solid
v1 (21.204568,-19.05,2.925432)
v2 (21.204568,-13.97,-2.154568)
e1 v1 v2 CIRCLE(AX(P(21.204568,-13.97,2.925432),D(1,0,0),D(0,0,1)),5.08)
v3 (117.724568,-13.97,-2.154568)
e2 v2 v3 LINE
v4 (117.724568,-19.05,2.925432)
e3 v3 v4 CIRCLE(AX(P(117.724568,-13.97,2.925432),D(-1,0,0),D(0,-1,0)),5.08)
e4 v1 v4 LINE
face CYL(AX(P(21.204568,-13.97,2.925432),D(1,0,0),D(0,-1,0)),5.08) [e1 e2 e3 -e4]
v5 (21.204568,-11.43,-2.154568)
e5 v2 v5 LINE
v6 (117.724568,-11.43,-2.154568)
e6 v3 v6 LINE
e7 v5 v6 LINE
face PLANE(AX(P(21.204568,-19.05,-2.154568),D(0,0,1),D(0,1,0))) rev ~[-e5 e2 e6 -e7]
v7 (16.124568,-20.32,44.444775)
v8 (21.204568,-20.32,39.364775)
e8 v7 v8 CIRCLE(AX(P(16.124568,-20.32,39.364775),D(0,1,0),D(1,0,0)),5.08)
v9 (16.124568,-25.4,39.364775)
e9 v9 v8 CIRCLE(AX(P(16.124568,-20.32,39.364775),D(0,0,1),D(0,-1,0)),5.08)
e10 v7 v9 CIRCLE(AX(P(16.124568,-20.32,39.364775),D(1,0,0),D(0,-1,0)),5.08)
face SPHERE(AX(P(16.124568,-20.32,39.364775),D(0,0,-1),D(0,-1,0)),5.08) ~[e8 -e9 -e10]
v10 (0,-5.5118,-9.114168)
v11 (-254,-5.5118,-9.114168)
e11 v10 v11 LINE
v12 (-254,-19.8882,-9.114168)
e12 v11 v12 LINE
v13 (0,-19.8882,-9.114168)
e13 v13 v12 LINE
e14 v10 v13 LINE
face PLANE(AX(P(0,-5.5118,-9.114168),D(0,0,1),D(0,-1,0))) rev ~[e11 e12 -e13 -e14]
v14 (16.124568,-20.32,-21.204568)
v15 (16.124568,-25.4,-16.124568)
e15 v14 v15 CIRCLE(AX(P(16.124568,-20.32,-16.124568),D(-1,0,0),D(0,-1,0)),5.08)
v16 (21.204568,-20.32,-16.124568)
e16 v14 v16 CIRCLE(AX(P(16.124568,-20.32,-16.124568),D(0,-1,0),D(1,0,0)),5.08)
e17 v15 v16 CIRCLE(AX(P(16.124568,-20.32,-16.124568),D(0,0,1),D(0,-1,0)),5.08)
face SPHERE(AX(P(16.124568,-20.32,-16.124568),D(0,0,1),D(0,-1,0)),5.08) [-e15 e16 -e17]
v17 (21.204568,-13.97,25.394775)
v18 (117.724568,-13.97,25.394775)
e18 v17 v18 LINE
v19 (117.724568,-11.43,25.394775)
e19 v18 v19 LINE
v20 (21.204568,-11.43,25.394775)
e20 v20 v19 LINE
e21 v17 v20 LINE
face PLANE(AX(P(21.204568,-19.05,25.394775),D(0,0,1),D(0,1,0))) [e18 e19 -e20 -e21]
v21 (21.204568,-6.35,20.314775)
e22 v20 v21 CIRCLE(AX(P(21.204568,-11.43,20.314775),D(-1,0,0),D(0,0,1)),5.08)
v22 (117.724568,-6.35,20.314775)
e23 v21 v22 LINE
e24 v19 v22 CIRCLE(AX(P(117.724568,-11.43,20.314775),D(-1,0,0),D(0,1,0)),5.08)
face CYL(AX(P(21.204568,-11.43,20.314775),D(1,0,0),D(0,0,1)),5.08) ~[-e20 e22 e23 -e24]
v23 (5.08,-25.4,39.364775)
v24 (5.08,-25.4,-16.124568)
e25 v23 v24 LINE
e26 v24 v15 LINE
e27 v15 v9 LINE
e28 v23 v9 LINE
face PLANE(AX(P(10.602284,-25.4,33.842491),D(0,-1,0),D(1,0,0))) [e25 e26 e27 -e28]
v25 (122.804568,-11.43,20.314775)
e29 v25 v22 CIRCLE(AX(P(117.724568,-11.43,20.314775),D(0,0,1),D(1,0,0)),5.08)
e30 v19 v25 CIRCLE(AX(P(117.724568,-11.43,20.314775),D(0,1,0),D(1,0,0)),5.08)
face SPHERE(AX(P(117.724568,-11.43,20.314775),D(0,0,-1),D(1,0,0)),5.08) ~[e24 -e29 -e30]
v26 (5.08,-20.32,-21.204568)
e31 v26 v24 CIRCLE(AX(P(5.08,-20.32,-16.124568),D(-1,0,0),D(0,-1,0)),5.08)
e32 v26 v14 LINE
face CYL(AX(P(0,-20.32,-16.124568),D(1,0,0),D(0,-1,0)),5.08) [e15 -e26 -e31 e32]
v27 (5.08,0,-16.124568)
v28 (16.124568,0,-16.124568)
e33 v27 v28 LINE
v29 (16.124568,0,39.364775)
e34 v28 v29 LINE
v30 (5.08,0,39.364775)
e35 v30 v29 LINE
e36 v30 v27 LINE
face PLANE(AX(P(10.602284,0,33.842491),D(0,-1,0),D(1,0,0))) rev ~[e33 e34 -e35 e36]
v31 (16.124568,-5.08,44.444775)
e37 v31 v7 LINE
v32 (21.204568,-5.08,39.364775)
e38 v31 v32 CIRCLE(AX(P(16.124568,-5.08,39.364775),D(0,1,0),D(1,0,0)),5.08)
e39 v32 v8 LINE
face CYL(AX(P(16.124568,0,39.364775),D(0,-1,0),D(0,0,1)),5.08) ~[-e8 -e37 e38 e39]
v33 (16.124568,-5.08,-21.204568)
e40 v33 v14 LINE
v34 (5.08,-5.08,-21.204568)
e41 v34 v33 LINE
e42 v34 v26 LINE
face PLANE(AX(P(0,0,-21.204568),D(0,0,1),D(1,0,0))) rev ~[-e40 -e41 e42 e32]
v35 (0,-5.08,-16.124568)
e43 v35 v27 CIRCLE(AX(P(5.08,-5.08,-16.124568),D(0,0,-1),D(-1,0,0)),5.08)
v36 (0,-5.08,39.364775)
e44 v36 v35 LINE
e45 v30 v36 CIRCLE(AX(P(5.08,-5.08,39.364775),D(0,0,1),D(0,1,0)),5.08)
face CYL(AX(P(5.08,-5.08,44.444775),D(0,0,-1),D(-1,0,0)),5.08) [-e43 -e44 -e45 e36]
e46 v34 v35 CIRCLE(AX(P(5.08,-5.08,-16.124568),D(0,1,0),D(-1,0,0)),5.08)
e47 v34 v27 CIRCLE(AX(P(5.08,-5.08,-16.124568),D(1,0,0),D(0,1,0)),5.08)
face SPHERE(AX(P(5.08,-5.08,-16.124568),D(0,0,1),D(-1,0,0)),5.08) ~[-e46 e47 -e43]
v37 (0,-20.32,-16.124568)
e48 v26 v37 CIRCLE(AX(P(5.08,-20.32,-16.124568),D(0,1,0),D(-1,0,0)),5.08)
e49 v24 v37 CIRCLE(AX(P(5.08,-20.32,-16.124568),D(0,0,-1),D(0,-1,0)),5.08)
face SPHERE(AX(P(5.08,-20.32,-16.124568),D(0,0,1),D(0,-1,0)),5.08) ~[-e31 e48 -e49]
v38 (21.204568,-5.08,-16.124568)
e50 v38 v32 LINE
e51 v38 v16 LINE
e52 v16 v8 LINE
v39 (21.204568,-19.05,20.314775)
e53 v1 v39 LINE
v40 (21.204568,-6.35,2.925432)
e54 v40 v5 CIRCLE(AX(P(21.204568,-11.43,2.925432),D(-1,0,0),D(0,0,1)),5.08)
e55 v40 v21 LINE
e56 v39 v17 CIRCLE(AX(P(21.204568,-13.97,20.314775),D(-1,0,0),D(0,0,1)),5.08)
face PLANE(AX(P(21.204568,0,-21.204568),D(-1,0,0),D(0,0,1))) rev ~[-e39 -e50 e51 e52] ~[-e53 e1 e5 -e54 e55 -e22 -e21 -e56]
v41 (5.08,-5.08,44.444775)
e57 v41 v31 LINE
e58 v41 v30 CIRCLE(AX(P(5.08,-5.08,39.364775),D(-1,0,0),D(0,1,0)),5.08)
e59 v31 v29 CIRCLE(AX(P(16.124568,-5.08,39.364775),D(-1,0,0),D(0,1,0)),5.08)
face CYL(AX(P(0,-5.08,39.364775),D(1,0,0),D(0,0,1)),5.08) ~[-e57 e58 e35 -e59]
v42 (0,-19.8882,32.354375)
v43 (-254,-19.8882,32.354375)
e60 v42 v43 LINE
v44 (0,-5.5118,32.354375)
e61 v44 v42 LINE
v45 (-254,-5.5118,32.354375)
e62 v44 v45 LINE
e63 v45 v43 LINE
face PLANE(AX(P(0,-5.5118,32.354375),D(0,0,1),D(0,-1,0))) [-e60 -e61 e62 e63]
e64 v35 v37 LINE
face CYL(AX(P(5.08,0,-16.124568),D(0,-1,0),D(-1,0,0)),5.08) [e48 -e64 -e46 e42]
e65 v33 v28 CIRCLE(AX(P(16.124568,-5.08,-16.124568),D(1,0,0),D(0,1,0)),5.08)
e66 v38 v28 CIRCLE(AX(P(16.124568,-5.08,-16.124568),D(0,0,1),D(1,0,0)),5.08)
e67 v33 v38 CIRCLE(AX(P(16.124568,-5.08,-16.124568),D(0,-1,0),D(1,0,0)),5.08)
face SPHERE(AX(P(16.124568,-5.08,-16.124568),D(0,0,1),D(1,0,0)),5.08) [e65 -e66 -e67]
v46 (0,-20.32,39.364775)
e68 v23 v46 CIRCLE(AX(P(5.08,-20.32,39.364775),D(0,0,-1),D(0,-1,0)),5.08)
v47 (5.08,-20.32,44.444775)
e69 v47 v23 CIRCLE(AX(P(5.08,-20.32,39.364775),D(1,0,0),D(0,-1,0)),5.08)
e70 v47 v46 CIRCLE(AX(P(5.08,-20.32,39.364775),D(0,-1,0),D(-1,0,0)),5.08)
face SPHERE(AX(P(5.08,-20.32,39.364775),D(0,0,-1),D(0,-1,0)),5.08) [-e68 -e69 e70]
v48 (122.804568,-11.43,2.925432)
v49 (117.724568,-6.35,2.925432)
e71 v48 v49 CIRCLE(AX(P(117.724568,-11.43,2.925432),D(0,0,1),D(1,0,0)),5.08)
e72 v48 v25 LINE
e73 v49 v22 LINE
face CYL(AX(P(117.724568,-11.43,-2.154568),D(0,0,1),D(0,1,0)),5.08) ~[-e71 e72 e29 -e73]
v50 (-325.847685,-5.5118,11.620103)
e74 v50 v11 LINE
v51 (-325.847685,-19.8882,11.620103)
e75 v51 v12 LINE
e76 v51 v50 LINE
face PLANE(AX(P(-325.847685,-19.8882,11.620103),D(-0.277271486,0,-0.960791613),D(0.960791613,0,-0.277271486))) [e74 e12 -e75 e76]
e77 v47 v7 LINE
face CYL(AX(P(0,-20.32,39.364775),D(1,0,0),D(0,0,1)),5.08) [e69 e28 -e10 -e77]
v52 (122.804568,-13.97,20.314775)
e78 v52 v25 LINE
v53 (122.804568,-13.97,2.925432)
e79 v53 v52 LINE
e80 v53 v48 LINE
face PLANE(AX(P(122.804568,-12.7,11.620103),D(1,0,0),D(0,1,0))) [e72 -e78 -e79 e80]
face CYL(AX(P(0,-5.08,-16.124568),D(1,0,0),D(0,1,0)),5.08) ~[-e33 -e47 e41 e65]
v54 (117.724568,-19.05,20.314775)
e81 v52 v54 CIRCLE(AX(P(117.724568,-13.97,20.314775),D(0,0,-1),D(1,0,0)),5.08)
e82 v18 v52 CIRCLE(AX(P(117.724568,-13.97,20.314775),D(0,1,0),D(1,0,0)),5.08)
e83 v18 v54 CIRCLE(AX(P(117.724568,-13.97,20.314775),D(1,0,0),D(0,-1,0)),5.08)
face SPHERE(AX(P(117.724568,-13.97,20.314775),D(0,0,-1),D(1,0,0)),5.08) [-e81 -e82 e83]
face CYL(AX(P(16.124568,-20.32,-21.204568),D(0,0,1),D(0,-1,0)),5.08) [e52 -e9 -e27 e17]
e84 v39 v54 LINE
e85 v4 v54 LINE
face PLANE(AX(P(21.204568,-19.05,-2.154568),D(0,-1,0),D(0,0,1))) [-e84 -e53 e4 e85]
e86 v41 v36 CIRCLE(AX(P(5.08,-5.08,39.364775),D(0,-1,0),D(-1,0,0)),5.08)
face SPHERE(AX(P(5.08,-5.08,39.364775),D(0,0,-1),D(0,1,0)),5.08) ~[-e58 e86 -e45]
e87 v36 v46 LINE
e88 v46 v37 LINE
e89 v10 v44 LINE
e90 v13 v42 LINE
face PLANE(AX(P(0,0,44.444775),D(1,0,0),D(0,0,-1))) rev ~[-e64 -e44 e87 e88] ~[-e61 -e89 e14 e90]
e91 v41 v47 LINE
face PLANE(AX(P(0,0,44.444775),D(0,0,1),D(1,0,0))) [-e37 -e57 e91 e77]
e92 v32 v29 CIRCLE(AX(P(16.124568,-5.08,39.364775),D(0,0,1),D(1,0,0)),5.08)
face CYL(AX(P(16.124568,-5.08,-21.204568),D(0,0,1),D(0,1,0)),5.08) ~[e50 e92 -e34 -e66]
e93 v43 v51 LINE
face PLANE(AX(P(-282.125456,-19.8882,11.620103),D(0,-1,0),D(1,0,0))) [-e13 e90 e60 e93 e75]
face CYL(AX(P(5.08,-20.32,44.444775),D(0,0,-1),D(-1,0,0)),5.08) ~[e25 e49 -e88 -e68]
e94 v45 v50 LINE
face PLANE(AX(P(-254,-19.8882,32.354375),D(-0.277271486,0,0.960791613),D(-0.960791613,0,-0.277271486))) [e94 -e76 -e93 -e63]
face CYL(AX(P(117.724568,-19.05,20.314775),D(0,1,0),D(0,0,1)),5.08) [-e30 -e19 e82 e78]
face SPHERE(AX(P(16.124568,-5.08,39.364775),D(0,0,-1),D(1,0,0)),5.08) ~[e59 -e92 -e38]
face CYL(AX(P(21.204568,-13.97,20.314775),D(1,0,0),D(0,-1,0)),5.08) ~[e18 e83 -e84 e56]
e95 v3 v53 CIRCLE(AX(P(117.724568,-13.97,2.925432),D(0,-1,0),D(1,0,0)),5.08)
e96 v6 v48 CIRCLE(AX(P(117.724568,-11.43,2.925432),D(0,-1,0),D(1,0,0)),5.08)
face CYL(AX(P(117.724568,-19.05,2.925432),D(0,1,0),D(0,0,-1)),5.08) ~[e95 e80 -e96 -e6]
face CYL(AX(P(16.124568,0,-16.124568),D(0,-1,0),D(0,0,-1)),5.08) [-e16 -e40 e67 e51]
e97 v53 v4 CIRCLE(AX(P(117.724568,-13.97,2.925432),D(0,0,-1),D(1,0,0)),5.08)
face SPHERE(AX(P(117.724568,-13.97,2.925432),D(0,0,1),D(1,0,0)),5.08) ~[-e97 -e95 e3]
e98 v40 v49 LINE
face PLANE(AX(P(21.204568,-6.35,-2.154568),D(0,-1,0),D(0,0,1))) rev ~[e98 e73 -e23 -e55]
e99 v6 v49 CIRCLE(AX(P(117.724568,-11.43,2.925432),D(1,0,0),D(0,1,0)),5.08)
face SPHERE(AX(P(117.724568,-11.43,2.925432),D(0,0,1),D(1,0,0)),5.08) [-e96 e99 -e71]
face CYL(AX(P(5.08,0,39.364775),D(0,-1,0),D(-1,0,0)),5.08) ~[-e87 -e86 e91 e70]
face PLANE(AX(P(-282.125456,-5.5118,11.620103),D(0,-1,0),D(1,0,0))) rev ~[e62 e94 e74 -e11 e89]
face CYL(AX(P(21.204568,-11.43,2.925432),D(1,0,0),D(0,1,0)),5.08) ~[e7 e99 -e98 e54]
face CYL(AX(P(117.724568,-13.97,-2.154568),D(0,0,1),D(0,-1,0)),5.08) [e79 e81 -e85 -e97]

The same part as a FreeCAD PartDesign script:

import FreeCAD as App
import Part
import Sketcher

V = App.Vector
Q = App.Units.Quantity


def edges_at(feature, points):
    """Names of the edges that pass closest to the given points."""
    edges = feature.Shape.Edges
    near = lambda p: min(range(len(edges)), key=lambda i: edges[i].distToShape(Part.Vertex(*p))[0])
    return sorted({f"Edge{near(p) + 1}" for p in points})


def add_polygon(sketch, points):
    """Adds a closed chain of lines whose ends are joined by coincident constraints."""
    first, n = sketch.GeometryCount, len(points)
    for a, b in zip(points, points[1:] + points[:1]):
        sketch.addGeometry(Part.LineSegment(App.Vector(*a, 0), App.Vector(*b, 0)), False)
    for i in range(n):
        sketch.addConstraint(Sketcher.Constraint("Coincident", first + i, 2, first + (i + 1) % n, 1))

doc = App.newDocument("Part")
body = doc.addObject("PartDesign::Body", "Body")

sketch1 = body.newObject("Sketcher::SketchObject", "Sketch")
sketch1.AttachmentSupport = (doc.getObject("XZ_Plane"), [""])
sketch1.MapMode = "FlatFace"
add_polygon(sketch1, [(0, 44), (0, -21), (21, -21), (21, 44)])
sketch1.addConstraint([
    Sketcher.Constraint("Vertical", 0),
    Sketcher.Constraint("Horizontal", 1),
    Sketcher.Constraint("Vertical", 2),
    Sketcher.Constraint("Horizontal", 3),
    Sketcher.Constraint("PointOnObject", 0, 2, -2),
    Sketcher.Constraint("DistanceX", 1, 1, 1, 2, 21.204568),
    Sketcher.Constraint("DistanceY", 0, 2, 0, 1, 65.649344),
    Sketcher.Constraint("DistanceY", 0, 2, -1, 1, 21.204568),
])
pad1 = body.newObject("PartDesign::Pad", "Pad")
pad1.Profile = sketch1
pad1.Length = Q("1 in")

sketch2 = body.newObject("Sketcher::SketchObject", "Sketch001")
sketch2.AttachmentSupport = (doc.getObject("YZ_Plane"), [""])
sketch2.MapMode = "FlatFace"
sketch2.AttachmentOffset = App.Placement(V(0, 0, 21.204568), App.Rotation())
add_polygon(sketch2, [(-19, 25), (-19, -2), (-6, -2), (-6, 25)])
sketch2.addConstraint([
    Sketcher.Constraint("Vertical", 0),
    Sketcher.Constraint("Horizontal", 1),
    Sketcher.Constraint("Vertical", 2),
    Sketcher.Constraint("Horizontal", 3),
    Sketcher.Constraint("DistanceX", 1, 1, 1, 2, Q("0.5 in")),
    Sketcher.Constraint("DistanceX", 0, 2, -1, 1, Q("0.75 in")),
    Sketcher.Constraint("DistanceY", 0, 2, 0, 1, 27.549344),
    Sketcher.Constraint("DistanceY", 0, 2, -1, 1, 2.154568),
])
pad2 = body.newObject("PartDesign::Pad", "Pad001")
pad2.Profile = sketch2
pad2.Length = Q("4 in")

sketch3 = body.newObject("Sketcher::SketchObject", "Sketch002")
sketch3.AttachmentSupport = (doc.getObject("YZ_Plane"), [""])
sketch3.MapMode = "FlatFace"
add_polygon(sketch3, [(-6, 32), (-6, -9), (-20, -9), (-20, 32)])
sketch3.addConstraint([
    Sketcher.Constraint("Vertical", 0),
    Sketcher.Constraint("Horizontal", 1),
    Sketcher.Constraint("Vertical", 2),
    Sketcher.Constraint("Horizontal", 3),
    Sketcher.Constraint("DistanceX", 1, 2, 1, 1, Q("0.566 in")),
    Sketcher.Constraint("DistanceX", 0, 2, -1, 1, Q("0.217 in")),
    Sketcher.Constraint("DistanceY", 0, 2, 0, 1, 41.468544),
    Sketcher.Constraint("DistanceY", 0, 2, -1, 1, 9.114168),
])
pad3 = body.newObject("PartDesign::Pad", "Pad002")
pad3.Profile = sketch3
pad3.Length = Q("10 in")
pad3.Reversed = True

sketch4 = body.newObject("Sketcher::SketchObject", "Sketch003")
sketch4.AttachmentSupport = (doc.getObject("XZ_Plane"), [""])
sketch4.MapMode = "FlatFace"
sketch4.AttachmentOffset = App.Placement(V(0, 0, 0.783 * 25.4), App.Rotation())
add_polygon(sketch4, [(-254, -9), (-254, 32), (-326, 12)])
sketch4.addConstraint([
    Sketcher.Constraint("Vertical", 0),
    Sketcher.Constraint("Equal", 1, 2),
    Sketcher.Constraint("DistanceX", 0, 2, -1, 1, Q("10 in")),
    Sketcher.Constraint("DistanceY", 0, 1, 0, 2, 41.468544),
    Sketcher.Constraint("DistanceY", 2, 2, -1, 1, 9.114168),
    Sketcher.Constraint("Distance", 1, 74.779676),
])
pad4 = body.newObject("PartDesign::Pad", "Pad003")
pad4.Profile = sketch4
pad4.Length = Q("0.566 in")
pad4.Reversed = True
doc.recompute()

fillet = body.newObject("PartDesign::Fillet", "Fillet")
fillet.Base = (pad4, edges_at(pad4, [
    (21.205, -25.4, 11.62),
    (0, -25.4, 11.62),
    (0, 0, 11.62),
    (21.205, 0, 11.62),
    (10.602, -25.4, 44.445),
    (21.205, -12.7, 44.445),
    (10.602, 0, 44.445),
    (0, -12.7, 44.445),
    (10.602, -25.4, -21.205),
    (21.205, -12.7, -21.205),
    (0, -12.7, -21.205),
    (10.602, 0, -21.205),
    (122.805, -19.05, 11.62),
    (122.805, -6.35, 11.62),
    (122.805, -12.7, -2.155),
    (122.805, -12.7, 25.395),
    (72.005, -19.05, 25.395),
    (72.005, -6.35, 25.395),
    (72.005, -19.05, -2.155),
    (72.005, -6.35, -2.155),
]))
fillet.Radius = Q("0.2 in")

doc.recompute()
